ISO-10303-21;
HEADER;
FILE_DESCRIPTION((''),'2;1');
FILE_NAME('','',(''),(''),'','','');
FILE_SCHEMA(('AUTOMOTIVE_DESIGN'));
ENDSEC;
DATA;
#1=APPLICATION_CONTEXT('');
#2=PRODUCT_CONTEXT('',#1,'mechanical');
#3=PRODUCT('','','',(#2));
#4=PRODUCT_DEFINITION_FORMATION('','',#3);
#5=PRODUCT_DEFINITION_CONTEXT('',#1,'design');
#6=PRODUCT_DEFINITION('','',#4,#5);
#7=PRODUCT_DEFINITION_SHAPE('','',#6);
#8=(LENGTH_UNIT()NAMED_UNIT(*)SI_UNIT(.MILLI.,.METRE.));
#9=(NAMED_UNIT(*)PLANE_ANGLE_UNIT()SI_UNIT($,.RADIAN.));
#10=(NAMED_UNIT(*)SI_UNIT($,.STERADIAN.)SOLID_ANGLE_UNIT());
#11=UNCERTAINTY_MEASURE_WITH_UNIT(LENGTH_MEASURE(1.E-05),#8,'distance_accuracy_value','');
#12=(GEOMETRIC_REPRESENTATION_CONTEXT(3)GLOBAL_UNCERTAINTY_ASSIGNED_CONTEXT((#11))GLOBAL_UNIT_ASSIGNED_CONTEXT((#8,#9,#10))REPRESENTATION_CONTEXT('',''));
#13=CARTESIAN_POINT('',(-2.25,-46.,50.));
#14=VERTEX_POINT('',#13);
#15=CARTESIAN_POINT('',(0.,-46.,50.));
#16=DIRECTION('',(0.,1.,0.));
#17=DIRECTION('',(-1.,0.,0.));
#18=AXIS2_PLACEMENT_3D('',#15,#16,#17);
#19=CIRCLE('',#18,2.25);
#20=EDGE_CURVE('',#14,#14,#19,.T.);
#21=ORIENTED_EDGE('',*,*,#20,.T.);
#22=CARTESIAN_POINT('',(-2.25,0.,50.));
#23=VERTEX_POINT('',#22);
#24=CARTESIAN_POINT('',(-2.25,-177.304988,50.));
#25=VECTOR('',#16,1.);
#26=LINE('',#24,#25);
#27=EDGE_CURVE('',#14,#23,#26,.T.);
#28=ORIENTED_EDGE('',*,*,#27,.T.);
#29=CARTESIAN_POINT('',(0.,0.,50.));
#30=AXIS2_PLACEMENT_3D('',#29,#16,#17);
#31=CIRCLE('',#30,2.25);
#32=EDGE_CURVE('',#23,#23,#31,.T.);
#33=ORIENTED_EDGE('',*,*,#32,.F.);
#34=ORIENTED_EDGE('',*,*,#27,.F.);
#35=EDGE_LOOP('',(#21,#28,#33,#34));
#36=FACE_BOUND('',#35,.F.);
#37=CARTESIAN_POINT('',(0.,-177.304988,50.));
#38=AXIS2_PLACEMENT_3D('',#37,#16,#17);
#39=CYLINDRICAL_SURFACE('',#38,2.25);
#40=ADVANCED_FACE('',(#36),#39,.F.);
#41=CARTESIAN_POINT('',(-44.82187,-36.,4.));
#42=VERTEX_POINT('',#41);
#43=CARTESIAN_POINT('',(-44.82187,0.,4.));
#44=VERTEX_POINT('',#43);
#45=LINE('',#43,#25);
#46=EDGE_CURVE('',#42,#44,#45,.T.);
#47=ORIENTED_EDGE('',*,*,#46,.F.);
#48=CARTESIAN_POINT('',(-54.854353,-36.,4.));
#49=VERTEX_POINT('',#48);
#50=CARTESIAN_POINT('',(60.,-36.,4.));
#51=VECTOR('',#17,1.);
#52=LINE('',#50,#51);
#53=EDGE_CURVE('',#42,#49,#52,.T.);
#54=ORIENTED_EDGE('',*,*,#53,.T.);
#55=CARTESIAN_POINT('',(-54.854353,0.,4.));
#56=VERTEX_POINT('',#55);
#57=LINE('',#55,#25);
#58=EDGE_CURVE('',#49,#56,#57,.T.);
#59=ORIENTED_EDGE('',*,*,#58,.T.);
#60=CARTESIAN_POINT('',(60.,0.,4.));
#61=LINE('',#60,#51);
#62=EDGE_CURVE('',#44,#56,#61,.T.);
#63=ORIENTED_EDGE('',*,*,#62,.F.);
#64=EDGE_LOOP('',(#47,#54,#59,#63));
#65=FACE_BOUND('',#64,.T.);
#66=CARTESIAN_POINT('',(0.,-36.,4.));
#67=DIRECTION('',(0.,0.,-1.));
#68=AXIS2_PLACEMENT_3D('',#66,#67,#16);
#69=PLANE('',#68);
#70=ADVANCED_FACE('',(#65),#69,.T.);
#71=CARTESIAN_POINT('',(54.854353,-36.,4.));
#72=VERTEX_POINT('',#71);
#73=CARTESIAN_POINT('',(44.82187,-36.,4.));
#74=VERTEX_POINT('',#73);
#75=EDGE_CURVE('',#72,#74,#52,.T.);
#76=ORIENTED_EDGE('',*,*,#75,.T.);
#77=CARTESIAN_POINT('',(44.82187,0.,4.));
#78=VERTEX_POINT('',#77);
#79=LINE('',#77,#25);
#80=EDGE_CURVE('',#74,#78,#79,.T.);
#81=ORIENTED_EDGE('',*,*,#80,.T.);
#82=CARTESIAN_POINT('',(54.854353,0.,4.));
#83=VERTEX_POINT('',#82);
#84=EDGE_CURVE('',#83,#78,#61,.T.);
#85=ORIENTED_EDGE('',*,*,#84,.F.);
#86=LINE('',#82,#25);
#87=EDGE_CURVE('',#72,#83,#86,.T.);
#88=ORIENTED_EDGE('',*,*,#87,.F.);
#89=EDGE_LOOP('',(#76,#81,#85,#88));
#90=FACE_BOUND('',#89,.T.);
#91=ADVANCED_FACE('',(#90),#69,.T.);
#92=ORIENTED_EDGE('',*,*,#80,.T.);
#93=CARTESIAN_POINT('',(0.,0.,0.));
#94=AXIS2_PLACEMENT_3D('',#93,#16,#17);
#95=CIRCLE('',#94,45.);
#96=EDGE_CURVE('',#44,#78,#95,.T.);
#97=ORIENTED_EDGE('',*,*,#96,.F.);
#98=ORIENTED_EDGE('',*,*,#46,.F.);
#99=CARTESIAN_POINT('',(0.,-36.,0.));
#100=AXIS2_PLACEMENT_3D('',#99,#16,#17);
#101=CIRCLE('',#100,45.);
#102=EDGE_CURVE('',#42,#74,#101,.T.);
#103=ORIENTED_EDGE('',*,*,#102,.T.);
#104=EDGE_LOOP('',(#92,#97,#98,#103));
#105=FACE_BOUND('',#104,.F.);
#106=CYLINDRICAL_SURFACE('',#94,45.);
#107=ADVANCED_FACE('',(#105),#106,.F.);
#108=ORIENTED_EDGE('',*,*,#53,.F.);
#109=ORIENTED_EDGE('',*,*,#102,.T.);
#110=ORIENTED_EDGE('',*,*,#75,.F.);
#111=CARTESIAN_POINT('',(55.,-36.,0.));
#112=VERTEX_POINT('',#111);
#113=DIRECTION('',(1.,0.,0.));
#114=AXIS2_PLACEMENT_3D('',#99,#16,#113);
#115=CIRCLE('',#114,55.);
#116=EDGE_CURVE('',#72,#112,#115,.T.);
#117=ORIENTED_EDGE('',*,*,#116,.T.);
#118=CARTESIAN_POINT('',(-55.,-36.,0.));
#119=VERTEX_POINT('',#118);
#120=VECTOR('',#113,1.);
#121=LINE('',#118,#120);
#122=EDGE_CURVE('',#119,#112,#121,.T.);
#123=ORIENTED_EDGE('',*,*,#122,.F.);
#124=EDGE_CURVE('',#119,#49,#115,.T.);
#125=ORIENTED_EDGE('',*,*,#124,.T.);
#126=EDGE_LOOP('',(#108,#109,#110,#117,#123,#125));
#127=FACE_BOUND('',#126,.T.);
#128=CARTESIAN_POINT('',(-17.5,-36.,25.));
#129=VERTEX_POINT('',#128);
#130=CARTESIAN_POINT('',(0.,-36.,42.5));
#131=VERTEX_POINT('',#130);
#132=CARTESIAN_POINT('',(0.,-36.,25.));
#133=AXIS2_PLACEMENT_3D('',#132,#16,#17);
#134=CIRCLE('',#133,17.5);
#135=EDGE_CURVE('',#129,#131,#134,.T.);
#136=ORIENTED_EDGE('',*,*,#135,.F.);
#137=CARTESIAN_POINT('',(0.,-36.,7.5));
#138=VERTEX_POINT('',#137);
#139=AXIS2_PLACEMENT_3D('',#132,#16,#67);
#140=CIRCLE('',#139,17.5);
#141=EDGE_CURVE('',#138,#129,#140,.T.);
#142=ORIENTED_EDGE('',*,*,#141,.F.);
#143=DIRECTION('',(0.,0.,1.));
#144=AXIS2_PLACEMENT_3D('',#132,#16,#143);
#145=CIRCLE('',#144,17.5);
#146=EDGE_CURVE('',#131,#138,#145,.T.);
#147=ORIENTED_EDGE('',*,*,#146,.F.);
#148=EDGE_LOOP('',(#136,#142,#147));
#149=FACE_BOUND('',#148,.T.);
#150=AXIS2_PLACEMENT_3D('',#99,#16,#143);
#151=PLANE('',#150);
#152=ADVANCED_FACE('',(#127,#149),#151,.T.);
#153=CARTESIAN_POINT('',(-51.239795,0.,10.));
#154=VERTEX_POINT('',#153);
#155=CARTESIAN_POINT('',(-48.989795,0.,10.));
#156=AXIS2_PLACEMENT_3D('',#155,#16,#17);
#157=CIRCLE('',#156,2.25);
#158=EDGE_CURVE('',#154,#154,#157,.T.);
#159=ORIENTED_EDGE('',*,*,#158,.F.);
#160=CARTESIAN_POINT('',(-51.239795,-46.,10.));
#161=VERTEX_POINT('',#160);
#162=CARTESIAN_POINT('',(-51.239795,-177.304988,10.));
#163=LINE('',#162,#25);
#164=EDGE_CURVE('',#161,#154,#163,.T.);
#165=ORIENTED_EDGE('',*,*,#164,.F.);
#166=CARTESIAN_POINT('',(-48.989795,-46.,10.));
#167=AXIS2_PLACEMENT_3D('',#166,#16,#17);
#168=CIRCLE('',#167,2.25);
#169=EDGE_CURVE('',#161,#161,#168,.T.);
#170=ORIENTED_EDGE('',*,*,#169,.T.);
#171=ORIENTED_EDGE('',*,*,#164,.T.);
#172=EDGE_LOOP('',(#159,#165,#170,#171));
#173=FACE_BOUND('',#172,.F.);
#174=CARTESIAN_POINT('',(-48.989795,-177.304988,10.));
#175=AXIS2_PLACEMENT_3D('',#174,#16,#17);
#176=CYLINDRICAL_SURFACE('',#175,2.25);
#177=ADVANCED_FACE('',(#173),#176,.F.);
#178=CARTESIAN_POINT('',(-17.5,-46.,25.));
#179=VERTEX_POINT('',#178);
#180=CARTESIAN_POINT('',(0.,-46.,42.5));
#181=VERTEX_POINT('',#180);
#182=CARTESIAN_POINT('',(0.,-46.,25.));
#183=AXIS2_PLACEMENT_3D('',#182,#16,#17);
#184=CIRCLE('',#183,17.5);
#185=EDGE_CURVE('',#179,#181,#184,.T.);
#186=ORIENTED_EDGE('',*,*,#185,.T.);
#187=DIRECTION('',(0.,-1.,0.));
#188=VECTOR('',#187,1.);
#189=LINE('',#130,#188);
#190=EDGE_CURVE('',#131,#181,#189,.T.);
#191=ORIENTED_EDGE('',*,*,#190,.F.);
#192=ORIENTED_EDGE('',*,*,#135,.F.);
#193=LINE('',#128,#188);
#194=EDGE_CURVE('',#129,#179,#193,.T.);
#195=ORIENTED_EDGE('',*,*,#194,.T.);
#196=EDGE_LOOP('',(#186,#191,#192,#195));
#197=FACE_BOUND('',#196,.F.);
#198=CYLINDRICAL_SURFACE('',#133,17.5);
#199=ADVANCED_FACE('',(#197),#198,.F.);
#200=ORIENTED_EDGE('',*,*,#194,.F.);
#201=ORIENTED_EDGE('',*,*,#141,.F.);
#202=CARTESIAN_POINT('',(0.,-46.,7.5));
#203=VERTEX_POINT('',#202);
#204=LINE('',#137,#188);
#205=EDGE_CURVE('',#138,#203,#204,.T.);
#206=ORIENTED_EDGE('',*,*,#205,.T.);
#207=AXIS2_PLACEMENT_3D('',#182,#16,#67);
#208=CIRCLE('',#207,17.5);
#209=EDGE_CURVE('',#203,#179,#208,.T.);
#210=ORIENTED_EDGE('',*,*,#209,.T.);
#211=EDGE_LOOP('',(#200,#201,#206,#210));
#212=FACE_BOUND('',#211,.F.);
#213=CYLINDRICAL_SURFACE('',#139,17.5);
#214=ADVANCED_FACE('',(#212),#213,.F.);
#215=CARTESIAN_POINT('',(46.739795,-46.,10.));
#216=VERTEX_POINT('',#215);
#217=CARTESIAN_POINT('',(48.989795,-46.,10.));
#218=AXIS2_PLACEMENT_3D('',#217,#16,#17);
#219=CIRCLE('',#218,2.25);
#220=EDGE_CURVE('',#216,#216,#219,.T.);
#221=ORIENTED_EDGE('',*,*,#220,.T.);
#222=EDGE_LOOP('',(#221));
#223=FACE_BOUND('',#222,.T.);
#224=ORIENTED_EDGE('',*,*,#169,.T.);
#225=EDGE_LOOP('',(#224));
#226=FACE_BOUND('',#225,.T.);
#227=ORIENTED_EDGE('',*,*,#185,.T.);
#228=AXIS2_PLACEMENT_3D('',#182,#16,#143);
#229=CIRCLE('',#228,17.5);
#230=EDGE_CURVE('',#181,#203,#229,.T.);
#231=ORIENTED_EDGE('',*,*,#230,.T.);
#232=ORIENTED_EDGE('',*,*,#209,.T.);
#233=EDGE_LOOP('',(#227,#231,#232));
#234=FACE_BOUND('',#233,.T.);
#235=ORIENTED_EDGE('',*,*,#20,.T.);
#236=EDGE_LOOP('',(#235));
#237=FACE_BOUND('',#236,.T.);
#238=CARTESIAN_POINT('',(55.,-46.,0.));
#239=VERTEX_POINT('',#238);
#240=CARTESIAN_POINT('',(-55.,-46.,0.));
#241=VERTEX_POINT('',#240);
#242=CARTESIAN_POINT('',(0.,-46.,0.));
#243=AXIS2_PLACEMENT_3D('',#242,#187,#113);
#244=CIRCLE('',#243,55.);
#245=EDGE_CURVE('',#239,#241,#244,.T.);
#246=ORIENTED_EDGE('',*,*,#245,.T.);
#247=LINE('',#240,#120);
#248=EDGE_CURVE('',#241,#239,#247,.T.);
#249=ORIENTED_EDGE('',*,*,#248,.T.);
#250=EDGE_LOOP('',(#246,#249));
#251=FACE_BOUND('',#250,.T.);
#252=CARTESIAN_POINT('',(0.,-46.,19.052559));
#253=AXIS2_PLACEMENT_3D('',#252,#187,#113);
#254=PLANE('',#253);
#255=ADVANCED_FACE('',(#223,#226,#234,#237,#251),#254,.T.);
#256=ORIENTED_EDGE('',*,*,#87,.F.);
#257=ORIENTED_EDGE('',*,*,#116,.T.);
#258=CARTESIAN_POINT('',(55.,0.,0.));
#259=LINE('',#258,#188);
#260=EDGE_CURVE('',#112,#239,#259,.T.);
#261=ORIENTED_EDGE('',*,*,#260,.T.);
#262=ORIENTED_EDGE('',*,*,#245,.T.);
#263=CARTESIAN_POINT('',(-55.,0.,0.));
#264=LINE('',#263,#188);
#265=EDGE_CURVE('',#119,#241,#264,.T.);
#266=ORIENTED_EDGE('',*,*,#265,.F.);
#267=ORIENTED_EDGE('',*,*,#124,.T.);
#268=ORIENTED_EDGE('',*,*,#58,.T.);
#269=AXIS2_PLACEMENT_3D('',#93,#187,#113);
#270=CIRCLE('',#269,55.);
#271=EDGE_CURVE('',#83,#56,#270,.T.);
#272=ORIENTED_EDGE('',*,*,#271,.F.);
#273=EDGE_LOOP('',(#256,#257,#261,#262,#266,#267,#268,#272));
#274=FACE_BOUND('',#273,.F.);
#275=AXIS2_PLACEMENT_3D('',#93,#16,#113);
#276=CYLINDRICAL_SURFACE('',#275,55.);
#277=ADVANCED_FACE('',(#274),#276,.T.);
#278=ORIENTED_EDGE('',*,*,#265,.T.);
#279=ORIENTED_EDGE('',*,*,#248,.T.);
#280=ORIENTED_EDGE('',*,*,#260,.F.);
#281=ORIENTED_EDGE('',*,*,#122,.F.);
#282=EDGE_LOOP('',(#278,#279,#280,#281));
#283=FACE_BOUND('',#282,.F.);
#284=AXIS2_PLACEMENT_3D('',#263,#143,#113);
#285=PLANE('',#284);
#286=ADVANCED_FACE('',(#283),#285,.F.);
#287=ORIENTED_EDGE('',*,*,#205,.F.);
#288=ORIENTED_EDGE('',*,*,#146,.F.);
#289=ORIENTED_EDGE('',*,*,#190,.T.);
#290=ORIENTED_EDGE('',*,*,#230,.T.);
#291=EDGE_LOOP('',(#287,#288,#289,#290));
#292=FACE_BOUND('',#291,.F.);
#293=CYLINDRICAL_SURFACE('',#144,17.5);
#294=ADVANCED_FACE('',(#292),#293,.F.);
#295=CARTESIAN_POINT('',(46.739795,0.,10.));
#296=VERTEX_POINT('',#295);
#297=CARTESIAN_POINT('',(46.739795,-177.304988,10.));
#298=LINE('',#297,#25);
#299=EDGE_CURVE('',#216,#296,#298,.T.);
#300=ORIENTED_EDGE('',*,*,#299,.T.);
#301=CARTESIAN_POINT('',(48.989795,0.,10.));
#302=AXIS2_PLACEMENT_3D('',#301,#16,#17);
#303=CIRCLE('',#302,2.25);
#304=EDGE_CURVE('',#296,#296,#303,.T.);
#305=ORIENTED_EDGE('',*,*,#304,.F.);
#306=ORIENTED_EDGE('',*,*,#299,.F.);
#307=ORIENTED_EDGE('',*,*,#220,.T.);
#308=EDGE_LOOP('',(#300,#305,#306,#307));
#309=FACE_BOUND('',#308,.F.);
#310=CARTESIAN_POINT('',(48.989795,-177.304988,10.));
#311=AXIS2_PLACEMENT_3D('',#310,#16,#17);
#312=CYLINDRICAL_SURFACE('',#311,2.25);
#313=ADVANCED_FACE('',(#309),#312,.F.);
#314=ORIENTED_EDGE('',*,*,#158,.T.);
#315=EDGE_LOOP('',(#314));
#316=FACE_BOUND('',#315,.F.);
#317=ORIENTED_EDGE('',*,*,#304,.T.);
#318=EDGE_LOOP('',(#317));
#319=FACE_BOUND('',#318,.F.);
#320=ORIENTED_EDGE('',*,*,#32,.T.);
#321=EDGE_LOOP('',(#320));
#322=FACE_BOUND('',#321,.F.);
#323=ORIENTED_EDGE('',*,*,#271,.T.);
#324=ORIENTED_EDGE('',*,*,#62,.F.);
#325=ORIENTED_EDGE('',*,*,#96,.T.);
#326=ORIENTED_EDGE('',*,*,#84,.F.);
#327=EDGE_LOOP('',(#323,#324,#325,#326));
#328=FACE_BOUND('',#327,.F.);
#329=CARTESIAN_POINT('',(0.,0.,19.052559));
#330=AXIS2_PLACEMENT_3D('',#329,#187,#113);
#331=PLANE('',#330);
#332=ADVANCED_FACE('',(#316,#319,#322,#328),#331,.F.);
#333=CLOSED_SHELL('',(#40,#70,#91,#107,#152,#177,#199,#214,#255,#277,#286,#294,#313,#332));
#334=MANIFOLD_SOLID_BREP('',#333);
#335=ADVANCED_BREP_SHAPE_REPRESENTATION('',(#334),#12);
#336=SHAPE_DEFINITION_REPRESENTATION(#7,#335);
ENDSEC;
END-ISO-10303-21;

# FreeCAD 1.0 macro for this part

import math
import FreeCAD as App
import Part
import Sketcher

doc = App.newDocument("Part")
body = doc.addObject("PartDesign::Body", "Body")

# Sketch on XZ plane
sketch1 = body.newObject("Sketcher::SketchObject", "Sketch")
sketch1.AttachmentSupport = (doc.getObject("XZ_Plane"), [""])
sketch1.MapMode = "FlatFace"
sketch1.addGeometry([
    Part.LineSegment(App.Vector(-55, 0, 0), App.Vector(55, 0, 0)),
    Part.ArcOfCircle(Part.Circle(App.Vector(0, 0, 0), App.Vector(0, 0, 1), 55), math.radians(0), math.radians(180)),
], False)
sketch1.addConstraint([
    Sketcher.Constraint("Coincident", 0, 1, 1, 2),
    Sketcher.Constraint("Coincident", 1, 1, 0, 2),
    Sketcher.Constraint("Horizontal", 0),
    Sketcher.Constraint("Coincident", 1, 3, -1, 1),
    Sketcher.Constraint("PointOnObject", 0, 1, -1),
    Sketcher.Constraint("Radius", 1, 55.0),
])
pad1 = body.newObject("PartDesign::Pad", "Pad")
pad1.Profile = sketch1
pad1.Length = 46

# Sketch on XZ plane
sketch2 = body.newObject("Sketcher::SketchObject", "Sketch001")
sketch2.AttachmentSupport = (doc.getObject("XZ_Plane"), [""])
sketch2.MapMode = "FlatFace"
sketch2.addGeometry([
    Part.LineSegment(App.Vector(45, 0, 0), App.Vector(-45, 0, 0)),
    Part.ArcOfCircle(Part.Circle(App.Vector(0, 0, 0), App.Vector(0, 0, 1), 45), math.radians(0), math.radians(180)),
], False)
sketch2.addConstraint([
    Sketcher.Constraint("Coincident", 0, 1, 1, 1),
    Sketcher.Constraint("Coincident", 1, 2, 0, 2),
    Sketcher.Constraint("Horizontal", 0),
    Sketcher.Constraint("Coincident", 1, 3, -1, 1),
    Sketcher.Constraint("PointOnObject", 0, 1, -1),
    Sketcher.Constraint("Radius", 1, 45.0),
])
pocket1 = body.newObject("PartDesign::Pocket", "Pocket")
pocket1.Profile = sketch2
pocket1.Length = 36
pocket1.Reversed = True

# Sketch on YZ plane
sketch3 = body.newObject("Sketcher::SketchObject", "Sketch002")
sketch3.AttachmentSupport = (doc.getObject("YZ_Plane"), [""])
sketch3.MapMode = "FlatFace"
sketch3.addGeometry([
    Part.LineSegment(App.Vector(-36, 4, 0), App.Vector(-36, 0, 0)),
    Part.LineSegment(App.Vector(-36, 0, 0), App.Vector(0, 0, 0)),
    Part.LineSegment(App.Vector(0, 0, 0), App.Vector(0, 4, 0)),
    Part.LineSegment(App.Vector(0, 4, 0), App.Vector(-36, 4, 0)),
], False)
sketch3.addConstraint([
    Sketcher.Constraint("Coincident", 0, 2, 1, 1),
    Sketcher.Constraint("Coincident", 1, 2, 2, 1),
    Sketcher.Constraint("Coincident", 2, 2, 3, 1),
    Sketcher.Constraint("Coincident", 3, 2, 0, 1),
    Sketcher.Constraint("Vertical", 0),
    Sketcher.Constraint("Horizontal", 1),
    Sketcher.Constraint("Vertical", 2),
    Sketcher.Constraint("Horizontal", 3),
    Sketcher.Constraint("Coincident", 1, 2, -1, 1),
    Sketcher.Constraint("DistanceX", 1, 1, 1, 2, 36.0),
    Sketcher.Constraint("DistanceY", 0, 2, 0, 1, 4.0),
])
pocket2 = body.newObject("PartDesign::Pocket", "Pocket001")
pocket2.Profile = sketch3
pocket2.Length = 120
pocket2.Midplane = True

# Sketch on XZ plane
sketch4 = body.newObject("Sketcher::SketchObject", "Sketch003")
sketch4.AttachmentSupport = (doc.getObject("XZ_Plane"), [""])
sketch4.MapMode = "FlatFace"
sketch4.AttachmentOffset = App.Placement(App.Vector(0, 0, 36), App.Rotation())
sketch4.addGeometry([
    Part.ArcOfCircle(Part.Circle(App.Vector(0, 25, 0), App.Vector(0, 0, 1), 18), math.radians(180), math.radians(270)),
    Part.ArcOfCircle(Part.Circle(App.Vector(0, 25, 0), App.Vector(0, 0, 1), 18), math.radians(90), math.radians(180)),
    Part.ArcOfCircle(Part.Circle(App.Vector(0, 25, 0), App.Vector(0, 0, 1), 18), math.radians(-90), math.radians(90)),
], False)
sketch4.addConstraint([
    Sketcher.Constraint("Tangent", 0, 1, 1, 2),
    Sketcher.Constraint("Tangent", 1, 1, 2, 2),
    Sketcher.Constraint("Tangent", 2, 1, 0, 2),
    Sketcher.Constraint("PointOnObject", 0, 3, -2),
    Sketcher.Constraint("PointOnObject", 1, 1, -2),
    Sketcher.Constraint("PointOnObject", 2, 1, -2),
    Sketcher.Constraint("Horizontal", 2, 3, 0, 1),
    Sketcher.Constraint("Radius", 0, 17.5),
    Sketcher.Constraint("DistanceY", -1, 1, 0, 3, 25.0),
])
pocket3 = body.newObject("PartDesign::Pocket", "Pocket002")
pocket3.Profile = sketch4
pocket3.Length = 25
pocket3.Reversed = True

# Sketch on XZ plane
sketch5 = body.newObject("Sketcher::SketchObject", "Sketch004")
sketch5.AttachmentSupport = (doc.getObject("XZ_Plane"), [""])
sketch5.MapMode = "FlatFace"
sketch5.AttachmentOffset = App.Placement(App.Vector(0, 0, 46), App.Rotation())
sketch5.addGeometry([
    Part.Circle(App.Vector(49, 10, 0), App.Vector(0, 0, 1), 2.2),
    Part.Circle(App.Vector(0, 50, 0), App.Vector(0, 0, 1), 2.2),
    Part.Circle(App.Vector(-49, 10, 0), App.Vector(0, 0, 1), 2.2),
], False)
sketch5.addConstraint([
    Sketcher.Constraint("Equal", 0, 1),
    Sketcher.Constraint("Equal", 1, 2),
    Sketcher.Constraint("Symmetric", 0, 3, 2, 3, -2),
    Sketcher.Constraint("PointOnObject", 1, 3, -2),
    Sketcher.Constraint("Diameter", 0, 4.5),
    Sketcher.Constraint("DistanceY", -1, 1, 0, 3, 10.0),
    Sketcher.Constraint("DistanceY", -1, 1, 1, 3, 50.0),
    Sketcher.Constraint("DistanceX", 2, 3, 0, 3, 97.97959),
])
doc.recompute()
hole = body.newObject("PartDesign::Hole", "Hole")
hole.Profile = sketch5
hole.ThreadType = "None"
hole.Diameter = 4.5
hole.DepthType = "ThroughAll"

doc.recompute()
